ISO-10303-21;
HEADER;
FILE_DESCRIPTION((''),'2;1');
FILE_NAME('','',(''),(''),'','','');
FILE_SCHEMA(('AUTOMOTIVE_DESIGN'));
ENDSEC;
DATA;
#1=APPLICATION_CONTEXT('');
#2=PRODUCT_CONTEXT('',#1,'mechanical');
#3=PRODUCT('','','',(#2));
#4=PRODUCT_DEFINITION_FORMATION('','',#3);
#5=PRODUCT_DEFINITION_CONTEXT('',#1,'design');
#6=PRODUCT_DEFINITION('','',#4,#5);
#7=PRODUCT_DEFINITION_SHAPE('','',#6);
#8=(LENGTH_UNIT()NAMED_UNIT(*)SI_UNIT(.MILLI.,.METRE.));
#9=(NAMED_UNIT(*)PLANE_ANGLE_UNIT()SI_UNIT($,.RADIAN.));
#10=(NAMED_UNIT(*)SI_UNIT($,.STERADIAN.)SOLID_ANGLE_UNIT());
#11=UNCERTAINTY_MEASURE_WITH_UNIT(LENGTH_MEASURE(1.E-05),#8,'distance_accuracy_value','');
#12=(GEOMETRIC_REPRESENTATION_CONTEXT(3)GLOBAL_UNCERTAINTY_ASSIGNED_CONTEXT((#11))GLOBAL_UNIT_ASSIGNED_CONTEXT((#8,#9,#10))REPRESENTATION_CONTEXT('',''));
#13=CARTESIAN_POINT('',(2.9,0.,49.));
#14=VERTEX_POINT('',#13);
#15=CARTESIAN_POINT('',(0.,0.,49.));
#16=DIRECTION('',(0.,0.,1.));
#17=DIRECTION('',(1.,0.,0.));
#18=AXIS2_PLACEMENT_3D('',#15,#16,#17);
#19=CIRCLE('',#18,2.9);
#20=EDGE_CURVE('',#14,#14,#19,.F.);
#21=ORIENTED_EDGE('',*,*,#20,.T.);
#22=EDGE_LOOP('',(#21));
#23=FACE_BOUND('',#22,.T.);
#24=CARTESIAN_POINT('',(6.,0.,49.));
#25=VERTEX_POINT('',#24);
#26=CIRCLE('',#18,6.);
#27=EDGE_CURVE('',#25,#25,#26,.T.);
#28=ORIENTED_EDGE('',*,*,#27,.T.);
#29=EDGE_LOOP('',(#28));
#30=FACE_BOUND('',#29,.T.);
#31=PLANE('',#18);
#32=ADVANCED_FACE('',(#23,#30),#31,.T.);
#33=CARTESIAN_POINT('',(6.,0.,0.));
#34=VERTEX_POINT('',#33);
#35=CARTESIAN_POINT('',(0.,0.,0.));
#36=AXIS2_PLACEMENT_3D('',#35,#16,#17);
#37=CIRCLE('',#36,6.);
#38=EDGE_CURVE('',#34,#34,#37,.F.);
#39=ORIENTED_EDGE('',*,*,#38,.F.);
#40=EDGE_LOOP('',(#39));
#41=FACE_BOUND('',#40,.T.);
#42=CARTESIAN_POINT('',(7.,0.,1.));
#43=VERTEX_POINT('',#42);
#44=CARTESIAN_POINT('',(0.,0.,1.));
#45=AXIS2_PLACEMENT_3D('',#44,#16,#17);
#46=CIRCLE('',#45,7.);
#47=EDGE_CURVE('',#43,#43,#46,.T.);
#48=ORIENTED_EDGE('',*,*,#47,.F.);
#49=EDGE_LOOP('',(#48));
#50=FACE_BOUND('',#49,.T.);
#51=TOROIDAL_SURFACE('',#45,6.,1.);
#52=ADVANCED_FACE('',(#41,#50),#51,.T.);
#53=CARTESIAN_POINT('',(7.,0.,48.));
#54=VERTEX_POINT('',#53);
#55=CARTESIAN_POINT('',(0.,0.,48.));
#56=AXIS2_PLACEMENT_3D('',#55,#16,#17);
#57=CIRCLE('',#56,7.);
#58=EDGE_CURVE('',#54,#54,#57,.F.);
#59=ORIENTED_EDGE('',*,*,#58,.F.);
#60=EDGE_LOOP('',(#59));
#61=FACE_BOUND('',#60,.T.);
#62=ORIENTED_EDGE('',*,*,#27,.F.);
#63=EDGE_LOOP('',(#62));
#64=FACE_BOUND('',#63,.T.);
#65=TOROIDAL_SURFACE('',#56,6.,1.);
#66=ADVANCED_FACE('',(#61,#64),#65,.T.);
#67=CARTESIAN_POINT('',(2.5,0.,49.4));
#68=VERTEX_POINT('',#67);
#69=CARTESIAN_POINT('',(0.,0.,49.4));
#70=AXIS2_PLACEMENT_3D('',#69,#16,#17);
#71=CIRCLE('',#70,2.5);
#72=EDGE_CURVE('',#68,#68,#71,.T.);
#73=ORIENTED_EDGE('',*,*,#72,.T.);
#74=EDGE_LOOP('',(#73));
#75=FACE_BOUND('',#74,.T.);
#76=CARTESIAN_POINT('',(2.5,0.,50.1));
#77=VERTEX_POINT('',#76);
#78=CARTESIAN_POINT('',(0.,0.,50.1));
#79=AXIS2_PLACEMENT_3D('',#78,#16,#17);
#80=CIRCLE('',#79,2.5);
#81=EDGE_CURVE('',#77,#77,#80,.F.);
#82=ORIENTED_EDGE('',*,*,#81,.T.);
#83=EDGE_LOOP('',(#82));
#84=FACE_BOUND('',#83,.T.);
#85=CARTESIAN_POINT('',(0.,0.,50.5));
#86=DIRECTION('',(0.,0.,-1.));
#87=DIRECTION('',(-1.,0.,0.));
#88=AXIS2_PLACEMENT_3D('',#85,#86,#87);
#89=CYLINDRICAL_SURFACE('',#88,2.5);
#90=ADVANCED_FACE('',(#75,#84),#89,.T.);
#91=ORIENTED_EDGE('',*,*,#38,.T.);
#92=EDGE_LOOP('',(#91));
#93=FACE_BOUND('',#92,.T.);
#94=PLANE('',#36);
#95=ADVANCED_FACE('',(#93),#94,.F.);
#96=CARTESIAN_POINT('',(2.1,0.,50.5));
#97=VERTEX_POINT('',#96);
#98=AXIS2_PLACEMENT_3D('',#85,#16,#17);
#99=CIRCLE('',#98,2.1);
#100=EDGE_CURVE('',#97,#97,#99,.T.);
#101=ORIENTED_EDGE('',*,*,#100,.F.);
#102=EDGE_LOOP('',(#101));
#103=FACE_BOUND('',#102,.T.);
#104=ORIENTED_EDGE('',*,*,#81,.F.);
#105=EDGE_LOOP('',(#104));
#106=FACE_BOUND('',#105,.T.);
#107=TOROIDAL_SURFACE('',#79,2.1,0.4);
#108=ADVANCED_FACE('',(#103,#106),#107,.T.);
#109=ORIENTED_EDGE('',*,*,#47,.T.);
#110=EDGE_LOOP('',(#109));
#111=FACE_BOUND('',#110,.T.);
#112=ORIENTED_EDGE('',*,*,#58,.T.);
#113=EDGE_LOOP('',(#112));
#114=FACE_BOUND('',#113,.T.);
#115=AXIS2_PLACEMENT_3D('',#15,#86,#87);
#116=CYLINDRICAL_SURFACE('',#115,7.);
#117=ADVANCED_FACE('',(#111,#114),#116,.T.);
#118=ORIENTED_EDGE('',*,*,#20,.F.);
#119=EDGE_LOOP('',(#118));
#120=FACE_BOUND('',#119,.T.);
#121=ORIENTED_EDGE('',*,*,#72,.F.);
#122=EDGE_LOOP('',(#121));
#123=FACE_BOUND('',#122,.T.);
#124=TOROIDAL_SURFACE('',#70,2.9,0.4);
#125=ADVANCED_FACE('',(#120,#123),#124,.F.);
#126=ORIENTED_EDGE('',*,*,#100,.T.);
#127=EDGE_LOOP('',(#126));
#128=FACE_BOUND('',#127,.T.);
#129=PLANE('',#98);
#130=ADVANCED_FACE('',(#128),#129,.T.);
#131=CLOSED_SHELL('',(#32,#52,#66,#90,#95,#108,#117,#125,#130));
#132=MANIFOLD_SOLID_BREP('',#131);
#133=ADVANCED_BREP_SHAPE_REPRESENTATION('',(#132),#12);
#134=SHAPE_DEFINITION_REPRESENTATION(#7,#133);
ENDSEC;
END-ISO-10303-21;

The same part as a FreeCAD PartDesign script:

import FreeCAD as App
import Part
import Sketcher


def edges_at(feature, points):
    """Names of the edges that pass closest to the given points."""
    edges = feature.Shape.Edges
    near = lambda p: min(range(len(edges)), key=lambda i: edges[i].distToShape(Part.Vertex(*p))[0])
    return sorted({f"Edge{near(p) + 1}" for p in points})

doc = App.newDocument("Part")
body = doc.addObject("PartDesign::Body", "Body")

# Sketch on XY plane
sketch1 = body.newObject("Sketcher::SketchObject", "Sketch")
sketch1.AttachmentSupport = (doc.getObject("XY_Plane"), [""])
sketch1.MapMode = "FlatFace"
sketch1.addGeometry(Part.Circle(App.Vector(0, 0, 0), App.Vector(0, 0, 1), 7), False)
sketch1.addConstraint(Sketcher.Constraint("Coincident", 0, 3, -1, 1))
sketch1.addConstraint(Sketcher.Constraint("Diameter", 0, 14.0))
pad1 = body.newObject("PartDesign::Pad", "Pad")
pad1.Profile = sketch1
pad1.Length = 49

# Sketch on XY plane
sketch2 = body.newObject("Sketcher::SketchObject", "Sketch001")
sketch2.AttachmentSupport = (doc.getObject("XY_Plane"), [""])
sketch2.MapMode = "FlatFace"
sketch2.AttachmentOffset = App.Placement(App.Vector(0, 0, 49), App.Rotation())
sketch2.addGeometry(Part.Circle(App.Vector(0, 0, 0), App.Vector(0, 0, 1), 2.5), False)
sketch2.addConstraint(Sketcher.Constraint("Coincident", 0, 3, -1, 1))
sketch2.addConstraint(Sketcher.Constraint("Diameter", 0, 5.0))
pad2 = body.newObject("PartDesign::Pad", "Pad001")
pad2.Profile = sketch2
pad2.Length = 1.5
doc.recompute()

fillet = body.newObject("PartDesign::Fillet", "Fillet")
fillet.Base = (pad2, edges_at(pad2, [(-7, 0, 0), (-7, 0, 49)]))
fillet.Radius = 1
doc.recompute()

fillet2 = body.newObject("PartDesign::Fillet", "Fillet001")
fillet2.Base = (fillet, edges_at(fillet, [(-2.5, 0, 49), (-2.5, 0, 50.5)]))
fillet2.Radius = 0.4

doc.recompute()
